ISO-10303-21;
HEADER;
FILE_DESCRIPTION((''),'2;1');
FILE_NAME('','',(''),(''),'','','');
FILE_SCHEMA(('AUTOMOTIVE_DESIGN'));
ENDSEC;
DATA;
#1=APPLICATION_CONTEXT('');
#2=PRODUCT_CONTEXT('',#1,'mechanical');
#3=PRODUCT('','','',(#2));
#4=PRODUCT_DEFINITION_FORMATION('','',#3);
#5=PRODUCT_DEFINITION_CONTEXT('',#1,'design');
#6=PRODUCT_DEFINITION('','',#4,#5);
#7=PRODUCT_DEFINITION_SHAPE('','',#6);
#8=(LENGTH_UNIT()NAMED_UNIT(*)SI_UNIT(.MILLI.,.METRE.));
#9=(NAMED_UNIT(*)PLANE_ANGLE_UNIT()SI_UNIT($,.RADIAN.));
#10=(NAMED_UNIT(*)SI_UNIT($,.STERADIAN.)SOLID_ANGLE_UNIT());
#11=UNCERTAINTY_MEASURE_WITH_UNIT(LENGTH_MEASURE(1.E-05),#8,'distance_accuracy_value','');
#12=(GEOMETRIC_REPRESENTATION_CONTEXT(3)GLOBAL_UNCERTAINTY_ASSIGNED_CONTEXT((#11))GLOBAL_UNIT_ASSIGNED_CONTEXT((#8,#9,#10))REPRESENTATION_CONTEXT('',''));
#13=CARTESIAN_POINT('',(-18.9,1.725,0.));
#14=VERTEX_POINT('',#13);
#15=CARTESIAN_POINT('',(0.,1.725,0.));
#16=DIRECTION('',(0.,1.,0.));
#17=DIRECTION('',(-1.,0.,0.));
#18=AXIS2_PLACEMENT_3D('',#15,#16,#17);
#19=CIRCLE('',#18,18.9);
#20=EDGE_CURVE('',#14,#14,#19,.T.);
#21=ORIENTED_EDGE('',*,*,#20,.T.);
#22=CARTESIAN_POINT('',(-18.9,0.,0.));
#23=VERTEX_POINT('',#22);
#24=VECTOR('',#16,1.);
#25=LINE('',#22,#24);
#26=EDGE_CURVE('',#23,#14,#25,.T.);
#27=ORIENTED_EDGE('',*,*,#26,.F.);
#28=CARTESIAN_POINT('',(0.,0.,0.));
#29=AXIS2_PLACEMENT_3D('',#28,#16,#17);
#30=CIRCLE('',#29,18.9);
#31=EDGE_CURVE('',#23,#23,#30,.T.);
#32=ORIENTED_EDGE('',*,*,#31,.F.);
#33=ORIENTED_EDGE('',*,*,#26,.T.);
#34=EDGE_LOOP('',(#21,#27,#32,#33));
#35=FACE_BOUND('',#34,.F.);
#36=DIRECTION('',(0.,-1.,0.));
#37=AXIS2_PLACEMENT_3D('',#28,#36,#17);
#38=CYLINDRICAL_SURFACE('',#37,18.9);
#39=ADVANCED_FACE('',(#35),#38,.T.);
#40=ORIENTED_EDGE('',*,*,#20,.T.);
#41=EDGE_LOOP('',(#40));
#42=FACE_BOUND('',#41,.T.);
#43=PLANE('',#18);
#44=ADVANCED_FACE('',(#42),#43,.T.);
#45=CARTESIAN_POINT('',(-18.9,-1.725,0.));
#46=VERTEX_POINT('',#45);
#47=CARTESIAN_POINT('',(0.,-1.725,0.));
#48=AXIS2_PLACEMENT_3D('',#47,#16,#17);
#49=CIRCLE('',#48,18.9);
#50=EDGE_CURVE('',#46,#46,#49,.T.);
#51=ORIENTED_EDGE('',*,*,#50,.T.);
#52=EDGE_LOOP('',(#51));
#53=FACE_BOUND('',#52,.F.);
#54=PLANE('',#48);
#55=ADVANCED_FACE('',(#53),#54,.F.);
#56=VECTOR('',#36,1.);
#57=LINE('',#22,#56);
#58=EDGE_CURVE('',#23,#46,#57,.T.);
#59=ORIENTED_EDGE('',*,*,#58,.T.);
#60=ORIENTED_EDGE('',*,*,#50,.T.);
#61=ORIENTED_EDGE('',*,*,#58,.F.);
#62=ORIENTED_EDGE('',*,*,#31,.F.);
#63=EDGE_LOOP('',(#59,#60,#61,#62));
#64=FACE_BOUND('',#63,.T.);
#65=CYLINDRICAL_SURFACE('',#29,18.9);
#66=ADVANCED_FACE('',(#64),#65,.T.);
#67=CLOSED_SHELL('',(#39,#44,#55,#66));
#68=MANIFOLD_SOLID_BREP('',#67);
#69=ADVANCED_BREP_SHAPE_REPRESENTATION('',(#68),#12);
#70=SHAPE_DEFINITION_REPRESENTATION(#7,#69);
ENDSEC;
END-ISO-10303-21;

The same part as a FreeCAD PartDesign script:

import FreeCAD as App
import Part
import Sketcher
Q = App.Units.Quantity

doc = App.newDocument("Part")
body = doc.addObject("PartDesign::Body", "Body")

sketch1 = doc.addObject("Sketcher::SketchObject", "Sketch")
body.addObject(sketch1)
sketch1.AttachmentSupport = (doc.XZ_Plane, [""])
sketch1.MapMode = "FlatFace"
sketch1.addGeometry(Part.Circle(App.Vector(0, 0, 0), App.Vector(0, 0, 1), 19), False)
sketch1.addConstraint(Sketcher.Constraint("Coincident", 0, 3, -1, 1))
sketch1.addConstraint(Sketcher.Constraint("Diameter", 0, Q("37.8 mm")))
pad1 = doc.addObject("PartDesign::Pad", "Pad")
body.addObject(pad1)
pad1.Profile = sketch1
pad1.Length = 3.45
pad1.Midplane = True

doc.recompute()
